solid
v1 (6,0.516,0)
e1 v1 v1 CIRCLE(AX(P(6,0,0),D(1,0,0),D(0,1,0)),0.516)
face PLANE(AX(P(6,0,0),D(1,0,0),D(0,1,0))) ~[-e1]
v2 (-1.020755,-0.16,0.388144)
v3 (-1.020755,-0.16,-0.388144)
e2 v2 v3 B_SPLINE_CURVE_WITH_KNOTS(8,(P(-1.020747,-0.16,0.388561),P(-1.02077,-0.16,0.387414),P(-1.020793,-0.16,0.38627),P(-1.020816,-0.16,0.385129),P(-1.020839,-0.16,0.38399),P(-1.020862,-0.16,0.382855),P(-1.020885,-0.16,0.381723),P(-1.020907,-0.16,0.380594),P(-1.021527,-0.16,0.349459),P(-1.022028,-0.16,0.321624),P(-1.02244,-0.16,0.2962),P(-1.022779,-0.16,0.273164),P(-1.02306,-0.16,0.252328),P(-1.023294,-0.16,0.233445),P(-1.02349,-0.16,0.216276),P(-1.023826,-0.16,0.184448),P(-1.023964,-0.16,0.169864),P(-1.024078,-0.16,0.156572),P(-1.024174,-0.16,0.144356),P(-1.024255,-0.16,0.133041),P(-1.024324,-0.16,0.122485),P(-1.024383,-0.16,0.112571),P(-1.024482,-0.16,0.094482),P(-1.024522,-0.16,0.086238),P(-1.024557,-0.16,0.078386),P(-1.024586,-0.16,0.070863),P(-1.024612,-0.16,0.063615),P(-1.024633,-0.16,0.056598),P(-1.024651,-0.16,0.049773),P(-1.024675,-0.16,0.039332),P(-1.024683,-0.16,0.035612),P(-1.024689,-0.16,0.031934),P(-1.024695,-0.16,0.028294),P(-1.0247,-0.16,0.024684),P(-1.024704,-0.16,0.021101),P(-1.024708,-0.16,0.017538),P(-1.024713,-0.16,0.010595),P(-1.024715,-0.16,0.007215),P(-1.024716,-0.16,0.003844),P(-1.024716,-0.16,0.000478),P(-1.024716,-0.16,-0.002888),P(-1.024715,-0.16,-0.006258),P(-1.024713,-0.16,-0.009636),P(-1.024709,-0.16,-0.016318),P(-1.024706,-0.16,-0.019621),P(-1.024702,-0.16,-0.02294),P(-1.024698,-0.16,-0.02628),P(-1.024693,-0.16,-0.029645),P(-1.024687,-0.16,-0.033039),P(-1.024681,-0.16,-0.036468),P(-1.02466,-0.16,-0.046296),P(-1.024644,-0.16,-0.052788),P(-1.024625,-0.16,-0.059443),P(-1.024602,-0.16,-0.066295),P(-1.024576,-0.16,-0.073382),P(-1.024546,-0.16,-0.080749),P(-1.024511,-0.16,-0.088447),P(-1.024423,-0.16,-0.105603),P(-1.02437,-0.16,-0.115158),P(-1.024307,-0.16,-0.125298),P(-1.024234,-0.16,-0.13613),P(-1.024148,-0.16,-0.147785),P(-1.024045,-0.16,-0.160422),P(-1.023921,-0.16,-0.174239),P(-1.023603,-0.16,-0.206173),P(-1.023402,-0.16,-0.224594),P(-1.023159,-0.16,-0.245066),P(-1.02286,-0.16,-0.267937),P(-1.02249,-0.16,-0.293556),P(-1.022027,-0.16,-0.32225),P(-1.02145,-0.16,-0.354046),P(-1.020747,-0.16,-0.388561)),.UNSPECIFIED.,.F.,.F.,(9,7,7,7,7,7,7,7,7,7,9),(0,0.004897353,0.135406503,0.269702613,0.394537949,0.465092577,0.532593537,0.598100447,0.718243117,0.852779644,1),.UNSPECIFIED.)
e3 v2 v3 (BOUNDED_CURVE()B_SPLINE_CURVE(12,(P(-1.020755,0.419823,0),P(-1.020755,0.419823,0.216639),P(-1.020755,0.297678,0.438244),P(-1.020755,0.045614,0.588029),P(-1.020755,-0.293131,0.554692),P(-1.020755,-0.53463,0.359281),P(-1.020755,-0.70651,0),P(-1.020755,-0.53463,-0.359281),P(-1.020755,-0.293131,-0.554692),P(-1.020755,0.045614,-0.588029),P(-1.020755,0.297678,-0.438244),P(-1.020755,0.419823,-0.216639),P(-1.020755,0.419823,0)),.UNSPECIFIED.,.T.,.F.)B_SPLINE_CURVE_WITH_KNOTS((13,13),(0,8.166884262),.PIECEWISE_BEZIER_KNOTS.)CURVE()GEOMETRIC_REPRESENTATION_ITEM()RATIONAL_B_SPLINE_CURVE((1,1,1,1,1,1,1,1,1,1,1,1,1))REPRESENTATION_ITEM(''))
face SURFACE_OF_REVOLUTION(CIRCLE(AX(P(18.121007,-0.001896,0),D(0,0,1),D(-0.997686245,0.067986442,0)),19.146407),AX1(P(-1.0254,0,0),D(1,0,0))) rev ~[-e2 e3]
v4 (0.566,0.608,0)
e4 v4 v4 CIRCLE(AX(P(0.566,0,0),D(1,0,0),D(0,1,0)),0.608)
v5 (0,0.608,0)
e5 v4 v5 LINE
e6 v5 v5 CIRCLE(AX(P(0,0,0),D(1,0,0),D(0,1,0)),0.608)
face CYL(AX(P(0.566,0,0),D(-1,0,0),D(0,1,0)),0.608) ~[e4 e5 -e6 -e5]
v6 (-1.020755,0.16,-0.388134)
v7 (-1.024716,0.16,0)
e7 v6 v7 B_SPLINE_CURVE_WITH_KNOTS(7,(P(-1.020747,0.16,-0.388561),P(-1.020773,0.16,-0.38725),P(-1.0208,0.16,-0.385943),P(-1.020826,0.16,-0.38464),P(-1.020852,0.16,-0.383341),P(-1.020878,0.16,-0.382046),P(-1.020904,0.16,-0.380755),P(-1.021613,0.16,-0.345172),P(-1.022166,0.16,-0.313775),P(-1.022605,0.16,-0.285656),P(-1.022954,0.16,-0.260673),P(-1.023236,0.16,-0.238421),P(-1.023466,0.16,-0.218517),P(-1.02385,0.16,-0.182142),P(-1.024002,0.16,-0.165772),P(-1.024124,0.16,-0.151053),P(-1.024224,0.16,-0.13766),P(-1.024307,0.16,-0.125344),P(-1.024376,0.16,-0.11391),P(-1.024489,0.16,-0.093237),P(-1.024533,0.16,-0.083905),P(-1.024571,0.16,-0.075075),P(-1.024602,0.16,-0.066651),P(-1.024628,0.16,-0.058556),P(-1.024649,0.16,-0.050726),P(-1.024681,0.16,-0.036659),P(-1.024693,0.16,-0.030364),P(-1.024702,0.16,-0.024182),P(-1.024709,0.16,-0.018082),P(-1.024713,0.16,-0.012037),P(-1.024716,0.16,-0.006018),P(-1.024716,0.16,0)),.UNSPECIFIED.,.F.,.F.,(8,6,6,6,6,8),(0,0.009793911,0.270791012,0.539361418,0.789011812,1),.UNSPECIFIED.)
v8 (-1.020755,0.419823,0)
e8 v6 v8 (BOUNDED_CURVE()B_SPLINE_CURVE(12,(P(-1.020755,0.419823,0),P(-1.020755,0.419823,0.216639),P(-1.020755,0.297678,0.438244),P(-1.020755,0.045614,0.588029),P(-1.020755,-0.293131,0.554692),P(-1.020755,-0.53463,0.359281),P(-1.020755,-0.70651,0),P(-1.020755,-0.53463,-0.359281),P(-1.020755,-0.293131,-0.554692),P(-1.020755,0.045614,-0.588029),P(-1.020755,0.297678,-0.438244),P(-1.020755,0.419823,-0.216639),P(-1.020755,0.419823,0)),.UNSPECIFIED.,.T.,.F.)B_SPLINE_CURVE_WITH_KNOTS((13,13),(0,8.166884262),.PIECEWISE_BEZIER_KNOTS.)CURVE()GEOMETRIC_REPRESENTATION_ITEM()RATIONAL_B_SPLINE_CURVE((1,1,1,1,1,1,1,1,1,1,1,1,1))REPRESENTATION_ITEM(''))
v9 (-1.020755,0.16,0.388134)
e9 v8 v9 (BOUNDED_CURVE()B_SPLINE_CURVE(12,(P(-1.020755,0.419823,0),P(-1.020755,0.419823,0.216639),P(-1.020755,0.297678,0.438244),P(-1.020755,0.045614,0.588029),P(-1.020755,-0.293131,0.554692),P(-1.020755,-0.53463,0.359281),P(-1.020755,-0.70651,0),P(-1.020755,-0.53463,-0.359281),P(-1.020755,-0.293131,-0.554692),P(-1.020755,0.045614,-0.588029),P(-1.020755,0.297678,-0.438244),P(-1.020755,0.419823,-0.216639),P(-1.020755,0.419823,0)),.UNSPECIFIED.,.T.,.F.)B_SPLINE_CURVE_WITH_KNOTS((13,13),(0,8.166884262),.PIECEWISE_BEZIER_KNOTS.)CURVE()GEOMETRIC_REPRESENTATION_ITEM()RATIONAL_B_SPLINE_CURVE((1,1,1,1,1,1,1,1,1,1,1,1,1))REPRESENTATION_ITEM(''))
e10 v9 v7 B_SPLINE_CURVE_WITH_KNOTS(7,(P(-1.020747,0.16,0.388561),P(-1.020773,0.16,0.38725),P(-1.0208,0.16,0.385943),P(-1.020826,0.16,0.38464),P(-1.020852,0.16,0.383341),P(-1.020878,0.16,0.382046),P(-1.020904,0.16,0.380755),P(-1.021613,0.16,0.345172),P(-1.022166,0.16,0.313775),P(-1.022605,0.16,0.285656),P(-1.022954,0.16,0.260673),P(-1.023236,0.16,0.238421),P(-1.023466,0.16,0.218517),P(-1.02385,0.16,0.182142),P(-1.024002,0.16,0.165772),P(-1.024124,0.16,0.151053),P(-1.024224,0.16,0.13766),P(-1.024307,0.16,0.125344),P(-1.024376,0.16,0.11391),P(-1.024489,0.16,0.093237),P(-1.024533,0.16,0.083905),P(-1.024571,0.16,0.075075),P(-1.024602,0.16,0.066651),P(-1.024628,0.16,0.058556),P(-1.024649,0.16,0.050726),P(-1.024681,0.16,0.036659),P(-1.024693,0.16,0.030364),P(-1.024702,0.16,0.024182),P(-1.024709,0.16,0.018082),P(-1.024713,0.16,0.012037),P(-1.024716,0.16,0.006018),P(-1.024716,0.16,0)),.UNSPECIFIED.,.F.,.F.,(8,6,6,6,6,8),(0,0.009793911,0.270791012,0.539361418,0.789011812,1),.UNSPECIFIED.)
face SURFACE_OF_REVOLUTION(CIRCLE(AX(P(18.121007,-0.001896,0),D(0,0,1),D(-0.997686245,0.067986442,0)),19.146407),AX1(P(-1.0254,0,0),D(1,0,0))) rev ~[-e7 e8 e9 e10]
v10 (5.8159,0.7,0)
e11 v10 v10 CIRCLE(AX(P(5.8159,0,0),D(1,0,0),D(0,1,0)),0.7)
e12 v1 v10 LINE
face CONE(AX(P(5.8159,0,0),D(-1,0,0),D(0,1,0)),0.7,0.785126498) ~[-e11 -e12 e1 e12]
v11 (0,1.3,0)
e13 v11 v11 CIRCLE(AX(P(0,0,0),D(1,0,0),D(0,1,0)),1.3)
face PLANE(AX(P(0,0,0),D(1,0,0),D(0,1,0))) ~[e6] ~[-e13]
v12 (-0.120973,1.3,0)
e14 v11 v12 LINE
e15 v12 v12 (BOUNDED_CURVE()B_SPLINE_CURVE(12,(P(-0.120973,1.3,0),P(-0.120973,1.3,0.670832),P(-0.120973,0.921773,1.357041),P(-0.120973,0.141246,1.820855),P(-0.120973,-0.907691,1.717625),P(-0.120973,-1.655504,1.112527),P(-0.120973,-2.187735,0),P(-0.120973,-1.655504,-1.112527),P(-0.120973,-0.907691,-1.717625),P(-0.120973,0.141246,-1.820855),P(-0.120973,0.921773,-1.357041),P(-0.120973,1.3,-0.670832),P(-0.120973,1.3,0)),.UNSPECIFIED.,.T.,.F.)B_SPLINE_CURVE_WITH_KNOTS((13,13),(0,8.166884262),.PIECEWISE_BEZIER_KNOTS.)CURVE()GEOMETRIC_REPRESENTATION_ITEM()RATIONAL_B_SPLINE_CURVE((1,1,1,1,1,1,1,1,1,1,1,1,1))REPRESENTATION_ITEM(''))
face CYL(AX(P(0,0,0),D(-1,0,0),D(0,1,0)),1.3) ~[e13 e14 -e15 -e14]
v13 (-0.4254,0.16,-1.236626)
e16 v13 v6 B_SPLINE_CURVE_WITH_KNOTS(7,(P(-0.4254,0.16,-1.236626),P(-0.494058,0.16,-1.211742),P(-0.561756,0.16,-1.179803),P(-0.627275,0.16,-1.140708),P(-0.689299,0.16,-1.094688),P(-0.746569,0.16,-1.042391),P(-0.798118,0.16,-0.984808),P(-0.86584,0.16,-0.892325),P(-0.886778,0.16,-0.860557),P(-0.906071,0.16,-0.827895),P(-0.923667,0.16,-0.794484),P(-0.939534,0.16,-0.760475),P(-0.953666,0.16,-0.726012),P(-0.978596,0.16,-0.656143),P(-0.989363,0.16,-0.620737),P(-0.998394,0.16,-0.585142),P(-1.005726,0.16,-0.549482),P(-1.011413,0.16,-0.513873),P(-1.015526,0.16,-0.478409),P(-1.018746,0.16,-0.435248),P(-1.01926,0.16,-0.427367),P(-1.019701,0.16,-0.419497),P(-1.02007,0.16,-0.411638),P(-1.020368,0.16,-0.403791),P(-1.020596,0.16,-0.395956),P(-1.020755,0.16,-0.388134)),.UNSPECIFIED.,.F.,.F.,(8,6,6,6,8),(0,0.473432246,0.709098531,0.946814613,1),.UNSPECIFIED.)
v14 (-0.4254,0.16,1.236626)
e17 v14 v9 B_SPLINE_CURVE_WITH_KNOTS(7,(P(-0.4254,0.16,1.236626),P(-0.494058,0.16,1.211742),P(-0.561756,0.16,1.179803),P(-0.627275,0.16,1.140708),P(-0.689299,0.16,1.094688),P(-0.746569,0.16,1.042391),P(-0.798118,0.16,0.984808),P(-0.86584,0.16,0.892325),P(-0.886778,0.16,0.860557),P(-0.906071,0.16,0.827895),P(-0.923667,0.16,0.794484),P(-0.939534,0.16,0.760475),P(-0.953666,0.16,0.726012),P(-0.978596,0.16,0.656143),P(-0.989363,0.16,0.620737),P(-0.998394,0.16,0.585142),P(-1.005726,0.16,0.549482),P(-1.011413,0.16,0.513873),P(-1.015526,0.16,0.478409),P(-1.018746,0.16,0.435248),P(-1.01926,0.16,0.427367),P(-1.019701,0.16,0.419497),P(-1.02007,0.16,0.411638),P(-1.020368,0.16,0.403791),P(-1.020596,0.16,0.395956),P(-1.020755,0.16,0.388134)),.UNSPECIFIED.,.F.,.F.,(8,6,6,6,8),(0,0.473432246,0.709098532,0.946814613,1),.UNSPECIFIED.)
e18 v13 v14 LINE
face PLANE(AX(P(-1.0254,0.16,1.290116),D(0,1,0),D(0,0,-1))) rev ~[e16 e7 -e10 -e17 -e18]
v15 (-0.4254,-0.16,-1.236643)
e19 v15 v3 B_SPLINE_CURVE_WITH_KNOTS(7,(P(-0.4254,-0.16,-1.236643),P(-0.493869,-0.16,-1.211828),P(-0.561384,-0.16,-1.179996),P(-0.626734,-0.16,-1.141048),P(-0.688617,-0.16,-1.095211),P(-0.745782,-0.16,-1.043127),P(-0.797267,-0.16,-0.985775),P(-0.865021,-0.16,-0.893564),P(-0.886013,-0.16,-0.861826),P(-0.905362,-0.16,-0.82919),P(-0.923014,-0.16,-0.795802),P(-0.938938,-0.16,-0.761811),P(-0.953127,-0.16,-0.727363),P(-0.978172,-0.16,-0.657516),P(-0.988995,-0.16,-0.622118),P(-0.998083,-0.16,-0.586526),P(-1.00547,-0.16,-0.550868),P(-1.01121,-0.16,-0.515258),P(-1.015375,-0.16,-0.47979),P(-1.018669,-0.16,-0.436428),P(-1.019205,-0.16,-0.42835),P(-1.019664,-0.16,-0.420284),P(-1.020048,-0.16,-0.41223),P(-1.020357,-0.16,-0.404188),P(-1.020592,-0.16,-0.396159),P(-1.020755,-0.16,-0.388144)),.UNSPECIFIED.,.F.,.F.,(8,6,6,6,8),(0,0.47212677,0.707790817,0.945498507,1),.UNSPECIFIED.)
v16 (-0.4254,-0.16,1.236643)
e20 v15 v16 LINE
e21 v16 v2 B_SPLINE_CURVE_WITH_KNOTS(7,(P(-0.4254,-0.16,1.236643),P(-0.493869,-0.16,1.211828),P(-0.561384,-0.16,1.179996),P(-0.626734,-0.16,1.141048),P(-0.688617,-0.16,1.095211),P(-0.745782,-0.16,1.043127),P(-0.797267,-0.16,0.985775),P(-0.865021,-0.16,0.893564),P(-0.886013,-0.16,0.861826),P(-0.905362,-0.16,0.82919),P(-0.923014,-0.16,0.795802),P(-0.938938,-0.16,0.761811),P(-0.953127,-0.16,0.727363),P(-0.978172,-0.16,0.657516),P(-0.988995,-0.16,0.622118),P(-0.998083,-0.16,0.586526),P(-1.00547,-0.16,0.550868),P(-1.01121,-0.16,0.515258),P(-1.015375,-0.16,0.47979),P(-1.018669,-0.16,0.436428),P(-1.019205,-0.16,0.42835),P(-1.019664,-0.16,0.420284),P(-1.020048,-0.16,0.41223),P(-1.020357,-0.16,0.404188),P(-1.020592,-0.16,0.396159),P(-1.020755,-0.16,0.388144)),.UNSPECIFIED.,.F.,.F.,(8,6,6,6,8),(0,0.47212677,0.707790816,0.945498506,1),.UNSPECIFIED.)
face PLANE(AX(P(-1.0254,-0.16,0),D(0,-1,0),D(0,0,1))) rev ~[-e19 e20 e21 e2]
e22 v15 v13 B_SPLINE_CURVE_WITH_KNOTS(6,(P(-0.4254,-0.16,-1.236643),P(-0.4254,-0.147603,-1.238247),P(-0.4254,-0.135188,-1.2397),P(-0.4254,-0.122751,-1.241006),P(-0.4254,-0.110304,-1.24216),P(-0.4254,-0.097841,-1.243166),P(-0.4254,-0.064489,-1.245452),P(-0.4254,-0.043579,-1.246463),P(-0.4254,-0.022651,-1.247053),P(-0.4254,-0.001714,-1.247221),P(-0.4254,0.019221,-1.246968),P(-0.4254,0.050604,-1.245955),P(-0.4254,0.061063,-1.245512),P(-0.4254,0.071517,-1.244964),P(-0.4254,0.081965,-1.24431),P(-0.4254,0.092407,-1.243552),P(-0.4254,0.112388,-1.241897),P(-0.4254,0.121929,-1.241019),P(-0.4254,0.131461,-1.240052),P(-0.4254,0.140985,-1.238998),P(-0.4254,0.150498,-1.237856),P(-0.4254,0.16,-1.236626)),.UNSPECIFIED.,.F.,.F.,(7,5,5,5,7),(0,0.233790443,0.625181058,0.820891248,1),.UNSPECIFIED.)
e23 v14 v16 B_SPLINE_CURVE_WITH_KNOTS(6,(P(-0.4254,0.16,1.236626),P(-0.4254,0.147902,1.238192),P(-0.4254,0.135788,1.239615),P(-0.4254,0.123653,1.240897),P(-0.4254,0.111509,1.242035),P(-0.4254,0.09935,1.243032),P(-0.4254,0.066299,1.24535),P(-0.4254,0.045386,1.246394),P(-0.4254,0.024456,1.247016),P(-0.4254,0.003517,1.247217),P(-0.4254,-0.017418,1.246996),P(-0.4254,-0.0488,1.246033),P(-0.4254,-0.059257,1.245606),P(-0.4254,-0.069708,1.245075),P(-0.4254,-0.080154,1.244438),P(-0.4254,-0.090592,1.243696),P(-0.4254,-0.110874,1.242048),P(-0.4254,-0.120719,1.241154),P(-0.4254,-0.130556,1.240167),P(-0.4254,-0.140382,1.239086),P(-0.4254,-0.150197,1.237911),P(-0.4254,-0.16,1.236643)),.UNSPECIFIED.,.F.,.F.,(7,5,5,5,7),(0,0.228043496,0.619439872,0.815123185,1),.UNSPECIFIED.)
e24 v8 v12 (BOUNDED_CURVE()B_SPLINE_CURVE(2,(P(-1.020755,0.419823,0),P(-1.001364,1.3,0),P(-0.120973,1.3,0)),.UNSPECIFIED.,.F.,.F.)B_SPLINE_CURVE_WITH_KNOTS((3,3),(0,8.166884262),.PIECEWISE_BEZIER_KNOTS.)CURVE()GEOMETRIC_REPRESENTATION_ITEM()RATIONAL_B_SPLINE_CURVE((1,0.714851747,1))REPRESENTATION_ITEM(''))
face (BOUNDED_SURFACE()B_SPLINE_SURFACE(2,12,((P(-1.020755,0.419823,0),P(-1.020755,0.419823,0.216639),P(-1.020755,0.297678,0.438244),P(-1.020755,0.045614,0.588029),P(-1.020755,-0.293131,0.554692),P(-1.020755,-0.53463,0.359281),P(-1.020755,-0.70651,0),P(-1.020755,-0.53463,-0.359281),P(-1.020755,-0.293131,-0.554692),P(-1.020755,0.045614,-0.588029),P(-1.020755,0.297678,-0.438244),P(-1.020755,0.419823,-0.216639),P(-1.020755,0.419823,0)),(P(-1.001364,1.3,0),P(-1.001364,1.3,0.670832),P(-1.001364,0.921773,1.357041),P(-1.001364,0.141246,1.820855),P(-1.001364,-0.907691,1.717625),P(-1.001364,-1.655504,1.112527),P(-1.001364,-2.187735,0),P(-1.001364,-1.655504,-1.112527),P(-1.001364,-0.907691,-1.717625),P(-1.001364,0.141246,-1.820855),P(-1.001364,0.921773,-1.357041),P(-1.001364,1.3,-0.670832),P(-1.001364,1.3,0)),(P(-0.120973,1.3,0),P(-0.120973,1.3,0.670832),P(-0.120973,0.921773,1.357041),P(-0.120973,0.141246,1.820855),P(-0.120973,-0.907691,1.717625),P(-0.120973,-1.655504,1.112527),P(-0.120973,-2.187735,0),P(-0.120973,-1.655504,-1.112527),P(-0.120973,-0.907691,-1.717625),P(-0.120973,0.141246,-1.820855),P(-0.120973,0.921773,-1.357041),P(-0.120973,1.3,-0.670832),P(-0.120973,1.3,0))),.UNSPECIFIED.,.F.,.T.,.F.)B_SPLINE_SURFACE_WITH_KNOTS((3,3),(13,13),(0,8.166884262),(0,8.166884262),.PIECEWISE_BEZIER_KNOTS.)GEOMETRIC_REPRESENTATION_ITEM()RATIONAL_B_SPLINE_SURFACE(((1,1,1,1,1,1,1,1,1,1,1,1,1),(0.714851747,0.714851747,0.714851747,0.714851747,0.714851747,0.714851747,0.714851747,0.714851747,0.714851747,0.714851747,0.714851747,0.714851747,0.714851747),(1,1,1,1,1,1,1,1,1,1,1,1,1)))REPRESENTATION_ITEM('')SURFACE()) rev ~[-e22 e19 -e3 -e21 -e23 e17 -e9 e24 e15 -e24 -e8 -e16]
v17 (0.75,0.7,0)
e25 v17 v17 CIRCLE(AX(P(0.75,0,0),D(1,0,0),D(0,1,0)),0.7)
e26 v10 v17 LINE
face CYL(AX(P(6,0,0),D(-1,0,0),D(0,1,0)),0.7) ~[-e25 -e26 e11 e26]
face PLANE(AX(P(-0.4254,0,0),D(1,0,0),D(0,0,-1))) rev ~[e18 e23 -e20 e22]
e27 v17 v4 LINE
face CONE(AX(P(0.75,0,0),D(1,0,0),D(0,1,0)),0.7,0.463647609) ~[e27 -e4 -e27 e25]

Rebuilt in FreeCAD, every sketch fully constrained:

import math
import FreeCAD as App
import Part
import Sketcher
from FreeCAD import Vector
Q = App.Units.Quantity


def edges_at(feature, points):
    """Names of the edges that pass closest to the given points."""
    edges = feature.Shape.Edges
    near = lambda p: min(range(len(edges)), key=lambda i: edges[i].distToShape(Part.Vertex(*p))[0])
    return sorted({f"Edge{near(p) + 1}" for p in points})

doc = App.newDocument("Part")
body = doc.addObject("PartDesign::Body", "Body")

# Sketch on XY plane
sketch1 = doc.addObject("Sketcher::SketchObject", "Sketch")
body.addObject(sketch1)
sketch1.AttachmentSupport = (doc.XY_Plane, [""])
sketch1.MapMode = "FlatFace"
sketch1.addGeometry(Part.ArcOfCircle(Part.Circle(Vector(18.12, 0, 0), Vector(0, 0, 1), 19.15), math.radians(176.1), math.radians(179.99)), False)
sketch1.addGeometry(Part.LineSegment(Vector(-1.03, 0, 0), Vector(6, 0, 0)), False)
sketch1.addGeometry(Part.LineSegment(Vector(6, 0, 0), Vector(6, 0.7, 0)), False)
sketch1.addGeometry(Part.LineSegment(Vector(6, 0.7, 0), Vector(0.75, 0.7, 0)), False)
sketch1.addGeometry(Part.LineSegment(Vector(0.75, 0.7, 0), Vector(0.57, 0.61, 0)), False)
sketch1.addGeometry(Part.LineSegment(Vector(0.57, 0.61, 0), Vector(0, 0.61, 0)), False)
sketch1.addGeometry(Part.LineSegment(Vector(0, 0.61, 0), Vector(0, 1.3, 0)), False)
sketch1.addGeometry(Part.LineSegment(Vector(0, 1.3, 0), Vector(-0.98, 1.3, 0)), False)
sketch1.addConstraint(Sketcher.Constraint("Coincident", 0, 2, 1, 1))
sketch1.addConstraint(Sketcher.Constraint("Coincident", 1, 2, 2, 1))
sketch1.addConstraint(Sketcher.Constraint("Coincident", 2, 2, 3, 1))
sketch1.addConstraint(Sketcher.Constraint("Coincident", 3, 2, 4, 1))
sketch1.addConstraint(Sketcher.Constraint("Coincident", 4, 2, 5, 1))
sketch1.addConstraint(Sketcher.Constraint("Coincident", 5, 2, 6, 1))
sketch1.addConstraint(Sketcher.Constraint("Coincident", 6, 2, 7, 1))
sketch1.addConstraint(Sketcher.Constraint("Coincident", 7, 2, 0, 1))
sketch1.addConstraint(Sketcher.Constraint("Horizontal", 1))
sketch1.addConstraint(Sketcher.Constraint("Vertical", 2))
sketch1.addConstraint(Sketcher.Constraint("Horizontal", 3))
sketch1.addConstraint(Sketcher.Constraint("Horizontal", 5))
sketch1.addConstraint(Sketcher.Constraint("Vertical", 6))
sketch1.addConstraint(Sketcher.Constraint("Horizontal", 7))
sketch1.addConstraint(Sketcher.Constraint("PointOnObject", 0, 2, -1))
sketch1.addConstraint(Sketcher.Constraint("PointOnObject", 5, 2, -2))
sketch1.addConstraint(Sketcher.Constraint("DistanceX", -1, 1, 1, 2, Q("6 mm")))
sketch1.addConstraint(Sketcher.Constraint("DistanceX", 3, 2, 3, 1, Q("5.25 mm")))
sketch1.addConstraint(Sketcher.Constraint("DistanceY", 2, 1, 2, 2, Q("0.7 mm")))
sketch1.addConstraint(Sketcher.Constraint("DistanceX", 4, 2, 3, 2, Q("0.184 mm")))
sketch1.addConstraint(Sketcher.Constraint("DistanceX", 0, 2, -1, 1, Q("1.0254 mm")))
sketch1.addConstraint(Sketcher.Constraint("DistanceY", -1, 1, 6, 2, Q("1.3 mm")))
sketch1.addConstraint(Sketcher.Constraint("Radius", 0, Q("19.1464 mm")))
sketch1.addConstraint(Sketcher.Constraint("DistanceX", 7, 2, 7, 1, Q("0.981 mm")))
sketch1.addConstraint(Sketcher.Constraint("DistanceY", 6, 1, 6, 2, Q("0.692 mm")))
revolution = doc.addObject("PartDesign::Revolution", "Revolution")
body.addObject(revolution)
revolution.Profile = sketch1
revolution.ReferenceAxis = (sketch1, ["H_Axis"])
revolution.Angle = 360
doc.recompute()

fillet = doc.addObject("PartDesign::Fillet", "Fillet")
body.addObject(fillet)
fillet.Base = (revolution, edges_at(revolution, [(-0.981, -1.3, 0)]))
fillet.Radius = 0.9

# Sketch on YZ plane
sketch2 = doc.addObject("Sketcher::SketchObject", "Sketch001")
body.addObject(sketch2)
sketch2.AttachmentSupport = (doc.YZ_Plane, [""])
sketch2.MapMode = "FlatFace"
sketch2.AttachmentOffset = App.Placement(Vector(0, 0, -1.0254), App.Rotation())
sketch2.addGeometry(Part.LineSegment(Vector(-0.16, -1.3, 0), Vector(0.16, -1.3, 0)), False)
sketch2.addGeometry(Part.LineSegment(Vector(0.16, -1.3, 0), Vector(0.16, 1.3, 0)), False)
sketch2.addGeometry(Part.LineSegment(Vector(0.16, 1.3, 0), Vector(-0.16, 1.3, 0)), False)
sketch2.addGeometry(Part.LineSegment(Vector(-0.16, 1.3, 0), Vector(-0.16, -1.3, 0)), False)
sketch2.addConstraint(Sketcher.Constraint("Coincident", 0, 2, 1, 1))
sketch2.addConstraint(Sketcher.Constraint("Coincident", 1, 2, 2, 1))
sketch2.addConstraint(Sketcher.Constraint("Coincident", 2, 2, 3, 1))
sketch2.addConstraint(Sketcher.Constraint("Coincident", 3, 2, 0, 1))
sketch2.addConstraint(Sketcher.Constraint("Horizontal", 0))
sketch2.addConstraint(Sketcher.Constraint("Vertical", 1))
sketch2.addConstraint(Sketcher.Constraint("Horizontal", 2))
sketch2.addConstraint(Sketcher.Constraint("Vertical", 3))
sketch2.addConstraint(Sketcher.Constraint("Symmetric", 0, 2, 2, 2, -1, 1))
sketch2.addConstraint(Sketcher.Constraint("DistanceX", 0, 1, 0, 2, Q("0.32 mm")))
sketch2.addConstraint(Sketcher.Constraint("DistanceY", 1, 1, 1, 2, Q("2.6 mm")))
pocket1 = doc.addObject("PartDesign::Pocket", "Pocket")
body.addObject(pocket1)
pocket1.Profile = sketch2
pocket1.Length = 0.6
pocket1.Reversed = True
doc.recompute()

chamfer = doc.addObject("PartDesign::Chamfer", "Chamfer")
body.addObject(chamfer)
chamfer.Base = (pocket1, edges_at(pocket1, [(6, -0.7, 0)]))
chamfer.ChamferType = "Two distances"
chamfer.Size = 0.184
chamfer.Size2 = 0.1841

doc.recompute()
